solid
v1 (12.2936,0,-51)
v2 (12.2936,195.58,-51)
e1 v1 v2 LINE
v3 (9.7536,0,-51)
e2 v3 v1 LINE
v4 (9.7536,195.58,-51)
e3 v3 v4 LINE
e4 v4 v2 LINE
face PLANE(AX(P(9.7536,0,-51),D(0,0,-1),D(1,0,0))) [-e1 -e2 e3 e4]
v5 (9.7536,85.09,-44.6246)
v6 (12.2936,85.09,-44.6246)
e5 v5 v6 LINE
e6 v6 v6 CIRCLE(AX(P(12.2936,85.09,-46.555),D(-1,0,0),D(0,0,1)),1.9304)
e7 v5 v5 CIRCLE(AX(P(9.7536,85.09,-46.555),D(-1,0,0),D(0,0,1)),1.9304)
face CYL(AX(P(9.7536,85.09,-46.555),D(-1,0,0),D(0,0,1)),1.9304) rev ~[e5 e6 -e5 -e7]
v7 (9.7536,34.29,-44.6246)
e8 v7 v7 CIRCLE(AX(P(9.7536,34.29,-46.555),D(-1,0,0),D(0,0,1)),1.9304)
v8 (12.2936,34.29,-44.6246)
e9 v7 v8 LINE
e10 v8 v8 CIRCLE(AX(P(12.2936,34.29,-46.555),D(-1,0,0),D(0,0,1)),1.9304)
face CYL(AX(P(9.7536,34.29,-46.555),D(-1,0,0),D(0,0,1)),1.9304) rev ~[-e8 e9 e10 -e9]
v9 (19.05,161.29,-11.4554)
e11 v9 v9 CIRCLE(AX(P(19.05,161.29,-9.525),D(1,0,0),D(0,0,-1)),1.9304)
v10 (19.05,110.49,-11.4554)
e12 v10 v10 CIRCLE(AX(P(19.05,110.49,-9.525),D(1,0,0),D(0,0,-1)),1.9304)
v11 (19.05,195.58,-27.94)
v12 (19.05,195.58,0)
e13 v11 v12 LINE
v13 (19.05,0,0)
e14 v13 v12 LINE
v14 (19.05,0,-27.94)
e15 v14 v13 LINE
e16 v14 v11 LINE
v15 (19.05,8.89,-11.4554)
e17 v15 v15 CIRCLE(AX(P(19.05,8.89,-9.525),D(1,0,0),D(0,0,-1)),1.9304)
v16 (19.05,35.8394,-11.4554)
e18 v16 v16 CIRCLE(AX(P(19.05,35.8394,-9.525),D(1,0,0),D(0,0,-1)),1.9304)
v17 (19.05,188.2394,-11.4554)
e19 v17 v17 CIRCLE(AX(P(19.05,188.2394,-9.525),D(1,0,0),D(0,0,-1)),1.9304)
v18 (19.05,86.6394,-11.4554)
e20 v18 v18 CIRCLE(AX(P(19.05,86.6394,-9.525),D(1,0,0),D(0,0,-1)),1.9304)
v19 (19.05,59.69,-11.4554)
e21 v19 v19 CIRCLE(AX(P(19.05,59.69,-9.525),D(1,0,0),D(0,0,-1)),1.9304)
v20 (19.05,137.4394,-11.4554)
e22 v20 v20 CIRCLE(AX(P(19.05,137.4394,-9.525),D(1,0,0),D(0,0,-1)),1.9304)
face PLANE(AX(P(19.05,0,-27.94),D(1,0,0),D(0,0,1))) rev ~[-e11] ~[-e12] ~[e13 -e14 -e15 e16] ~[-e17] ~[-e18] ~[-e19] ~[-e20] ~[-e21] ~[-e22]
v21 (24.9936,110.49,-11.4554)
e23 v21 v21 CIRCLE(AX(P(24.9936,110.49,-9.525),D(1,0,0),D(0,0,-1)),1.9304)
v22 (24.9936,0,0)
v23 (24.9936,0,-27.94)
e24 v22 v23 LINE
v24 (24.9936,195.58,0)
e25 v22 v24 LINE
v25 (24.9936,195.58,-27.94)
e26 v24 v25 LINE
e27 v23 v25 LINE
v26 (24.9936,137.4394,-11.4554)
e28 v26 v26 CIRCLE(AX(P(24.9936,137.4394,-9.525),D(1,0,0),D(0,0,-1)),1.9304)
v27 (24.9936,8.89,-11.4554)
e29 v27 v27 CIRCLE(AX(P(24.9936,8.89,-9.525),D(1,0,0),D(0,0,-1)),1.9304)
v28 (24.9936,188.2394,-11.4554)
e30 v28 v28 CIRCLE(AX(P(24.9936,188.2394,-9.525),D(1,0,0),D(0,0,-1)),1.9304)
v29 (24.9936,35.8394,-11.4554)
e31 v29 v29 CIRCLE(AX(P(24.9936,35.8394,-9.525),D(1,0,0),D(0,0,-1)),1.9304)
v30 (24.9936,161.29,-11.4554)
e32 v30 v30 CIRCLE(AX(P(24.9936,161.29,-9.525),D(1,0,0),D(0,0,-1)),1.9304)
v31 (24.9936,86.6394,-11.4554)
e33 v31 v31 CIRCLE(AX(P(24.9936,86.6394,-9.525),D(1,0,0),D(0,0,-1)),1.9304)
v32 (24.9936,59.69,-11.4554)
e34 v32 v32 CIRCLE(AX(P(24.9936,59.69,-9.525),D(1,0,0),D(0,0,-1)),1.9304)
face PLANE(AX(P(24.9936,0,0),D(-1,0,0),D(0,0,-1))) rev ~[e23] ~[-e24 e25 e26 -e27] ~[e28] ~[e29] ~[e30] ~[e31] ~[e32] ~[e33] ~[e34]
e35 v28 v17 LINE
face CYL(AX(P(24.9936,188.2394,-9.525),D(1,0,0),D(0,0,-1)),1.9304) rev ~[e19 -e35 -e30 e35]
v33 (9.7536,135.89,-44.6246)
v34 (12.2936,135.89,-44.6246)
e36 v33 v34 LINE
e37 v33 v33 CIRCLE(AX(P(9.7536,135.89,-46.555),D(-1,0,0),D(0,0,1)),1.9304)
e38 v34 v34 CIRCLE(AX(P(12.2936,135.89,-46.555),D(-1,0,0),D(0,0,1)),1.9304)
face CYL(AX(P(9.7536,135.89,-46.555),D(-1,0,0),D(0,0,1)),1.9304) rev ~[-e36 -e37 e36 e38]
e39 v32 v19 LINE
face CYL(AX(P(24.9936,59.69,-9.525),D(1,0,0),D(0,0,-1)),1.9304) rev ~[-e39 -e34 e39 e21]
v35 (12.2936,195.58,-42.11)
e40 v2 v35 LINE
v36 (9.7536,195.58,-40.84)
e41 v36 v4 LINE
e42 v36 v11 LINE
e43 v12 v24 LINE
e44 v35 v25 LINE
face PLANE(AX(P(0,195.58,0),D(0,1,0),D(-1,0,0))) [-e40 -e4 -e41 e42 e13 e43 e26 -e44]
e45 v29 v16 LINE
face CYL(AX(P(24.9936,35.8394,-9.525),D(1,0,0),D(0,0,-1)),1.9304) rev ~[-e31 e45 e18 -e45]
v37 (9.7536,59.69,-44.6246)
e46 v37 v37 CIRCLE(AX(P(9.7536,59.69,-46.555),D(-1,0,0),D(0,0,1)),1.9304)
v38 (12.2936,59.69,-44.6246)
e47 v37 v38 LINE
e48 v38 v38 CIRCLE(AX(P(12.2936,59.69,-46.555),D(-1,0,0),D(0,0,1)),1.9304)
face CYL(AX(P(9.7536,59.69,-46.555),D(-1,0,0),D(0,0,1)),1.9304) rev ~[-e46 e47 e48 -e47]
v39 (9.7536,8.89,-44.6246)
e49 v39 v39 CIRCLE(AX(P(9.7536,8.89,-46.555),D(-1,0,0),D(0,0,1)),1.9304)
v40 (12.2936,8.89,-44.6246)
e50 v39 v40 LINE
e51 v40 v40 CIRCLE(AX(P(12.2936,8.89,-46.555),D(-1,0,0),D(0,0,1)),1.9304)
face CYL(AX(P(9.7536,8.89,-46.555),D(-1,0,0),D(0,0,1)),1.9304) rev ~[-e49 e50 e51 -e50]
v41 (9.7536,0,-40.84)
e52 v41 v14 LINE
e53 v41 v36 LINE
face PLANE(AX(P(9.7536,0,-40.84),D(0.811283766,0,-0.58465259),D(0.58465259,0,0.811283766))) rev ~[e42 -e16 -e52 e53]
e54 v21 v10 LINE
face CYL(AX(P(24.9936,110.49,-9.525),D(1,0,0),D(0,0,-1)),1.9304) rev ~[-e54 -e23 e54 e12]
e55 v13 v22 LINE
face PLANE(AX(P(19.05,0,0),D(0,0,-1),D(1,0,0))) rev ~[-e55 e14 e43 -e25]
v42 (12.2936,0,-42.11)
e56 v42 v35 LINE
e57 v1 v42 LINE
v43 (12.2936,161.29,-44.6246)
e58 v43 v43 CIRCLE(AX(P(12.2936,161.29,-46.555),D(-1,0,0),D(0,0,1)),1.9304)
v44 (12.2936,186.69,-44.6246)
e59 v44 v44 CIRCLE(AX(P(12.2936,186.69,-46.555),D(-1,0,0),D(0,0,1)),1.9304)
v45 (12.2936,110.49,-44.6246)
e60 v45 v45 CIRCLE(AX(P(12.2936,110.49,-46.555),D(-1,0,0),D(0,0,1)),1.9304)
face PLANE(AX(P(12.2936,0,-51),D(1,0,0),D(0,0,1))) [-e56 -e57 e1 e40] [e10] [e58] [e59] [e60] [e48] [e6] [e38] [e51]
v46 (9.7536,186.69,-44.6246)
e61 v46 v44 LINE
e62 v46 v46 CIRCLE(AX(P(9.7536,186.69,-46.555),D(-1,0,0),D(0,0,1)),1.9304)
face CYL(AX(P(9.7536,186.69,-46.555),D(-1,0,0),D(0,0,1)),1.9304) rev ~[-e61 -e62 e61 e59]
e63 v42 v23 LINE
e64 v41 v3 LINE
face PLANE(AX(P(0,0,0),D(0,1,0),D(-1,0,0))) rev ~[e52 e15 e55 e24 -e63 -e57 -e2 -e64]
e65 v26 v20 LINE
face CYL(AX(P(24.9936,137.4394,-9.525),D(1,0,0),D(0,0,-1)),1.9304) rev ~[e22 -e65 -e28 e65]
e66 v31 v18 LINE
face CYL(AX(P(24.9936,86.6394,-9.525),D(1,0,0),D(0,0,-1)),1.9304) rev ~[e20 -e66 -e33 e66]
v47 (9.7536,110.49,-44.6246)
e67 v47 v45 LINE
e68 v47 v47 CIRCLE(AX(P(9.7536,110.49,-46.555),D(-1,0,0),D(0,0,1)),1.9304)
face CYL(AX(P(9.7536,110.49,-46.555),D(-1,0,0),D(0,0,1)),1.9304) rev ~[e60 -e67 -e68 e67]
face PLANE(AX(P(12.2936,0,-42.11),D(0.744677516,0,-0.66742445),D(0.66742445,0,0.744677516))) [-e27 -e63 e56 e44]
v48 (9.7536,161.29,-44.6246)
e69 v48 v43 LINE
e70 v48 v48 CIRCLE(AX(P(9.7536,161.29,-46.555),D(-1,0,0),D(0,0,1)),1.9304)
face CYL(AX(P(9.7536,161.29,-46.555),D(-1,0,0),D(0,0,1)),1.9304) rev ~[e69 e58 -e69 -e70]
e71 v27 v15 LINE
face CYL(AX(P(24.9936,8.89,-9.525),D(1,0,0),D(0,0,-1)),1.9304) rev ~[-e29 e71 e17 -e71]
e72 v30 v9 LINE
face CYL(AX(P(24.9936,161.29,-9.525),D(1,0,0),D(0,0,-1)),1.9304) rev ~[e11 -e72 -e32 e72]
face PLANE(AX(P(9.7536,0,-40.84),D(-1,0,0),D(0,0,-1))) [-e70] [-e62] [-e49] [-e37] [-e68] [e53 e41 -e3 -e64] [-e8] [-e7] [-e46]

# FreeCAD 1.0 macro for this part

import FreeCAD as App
import Part
import Sketcher

V = App.Vector
Q = App.Units.Quantity

doc = App.newDocument("Part")
body = doc.addObject("PartDesign::Body", "Body")

# Sketch on XZ plane
sketch1 = doc.addObject("Sketcher::SketchObject", "Sketch")
body.addObject(sketch1)
sketch1.AttachmentSupport = (doc.XZ_Plane, [""])
sketch1.MapMode = "FlatFace"
sketch1.addGeometry([
    Part.LineSegment(V(19.1, -27.9, 0), V(19.1, 0, 0)),  # 0
    Part.LineSegment(V(19.1, 0, 0), V(25, 0, 0)),  # 1
    Part.LineSegment(V(25, 0, 0), V(25, -27.9, 0)),  # 2
    Part.LineSegment(V(25, -27.9, 0), V(12.3, -42.1, 0)),  # 3
    Part.LineSegment(V(12.3, -42.1, 0), V(12.3, -51, 0)),  # 4
    Part.LineSegment(V(12.3, -51, 0), V(9.8, -51, 0)),  # 5
    Part.LineSegment(V(9.8, -51, 0), V(9.8, -40.8, 0)),  # 6
    Part.LineSegment(V(9.8, -40.8, 0), V(19.1, -27.9, 0)),  # 7
], False)
sketch1.addConstraint([
    Sketcher.Constraint("Coincident", 0, 2, 1, 1),
    Sketcher.Constraint("Coincident", 1, 2, 2, 1),
    Sketcher.Constraint("Coincident", 2, 2, 3, 1),
    Sketcher.Constraint("Coincident", 3, 2, 4, 1),
    Sketcher.Constraint("Coincident", 4, 2, 5, 1),
    Sketcher.Constraint("Coincident", 5, 2, 6, 1),
    Sketcher.Constraint("Coincident", 6, 2, 7, 1),
    Sketcher.Constraint("Coincident", 7, 2, 0, 1),
    Sketcher.Constraint("Vertical", 0),
    Sketcher.Constraint("Horizontal", 1),
    Sketcher.Constraint("Vertical", 2),
    Sketcher.Constraint("Vertical", 4),
    Sketcher.Constraint("Horizontal", 5),
    Sketcher.Constraint("Vertical", 6),
    Sketcher.Constraint("PointOnObject", 0, 2, -1),
    Sketcher.Constraint("Horizontal", 2, 2, 7, 2),
    Sketcher.Constraint("DistanceY", 0, 1, 0, 2, Q("1.1 in")),
    Sketcher.Constraint("DistanceY", 4, 2, 4, 1, Q("0.35 in")),
    Sketcher.Constraint("DistanceX", 1, 1, 1, 2, Q("0.234 in")),
    Sketcher.Constraint("DistanceX", -1, 1, 0, 2, Q("0.75 in")),
    Sketcher.Constraint("DistanceX", 5, 2, 5, 1, Q("0.1 in")),
    Sketcher.Constraint("DistanceY", 6, 1, 6, 2, Q("0.4 in")),
    Sketcher.Constraint("DistanceX", 3, 2, 2, 2, Q("0.5 in")),
    Sketcher.Constraint("DistanceY", 4, 2, -1, 1, Q("51 mm")),
])
pad1 = doc.addObject("PartDesign::Pad", "Pad")
body.addObject(pad1)
pad1.Profile = sketch1
pad1.Length = Q("7.7 in")
pad1.Reversed = True

# Sketch on YZ plane
sketch2 = doc.addObject("Sketcher::SketchObject", "Sketch001")
body.addObject(sketch2)
sketch2.AttachmentSupport = (doc.YZ_Plane, [""])
sketch2.MapMode = "FlatFace"
sketch2.AttachmentOffset = App.Placement(V(0, 0, 0.984 * 25.4), App.Rotation())
sketch2.addGeometry([
    Part.Circle(V(8.9, -9.5, 0), V(0, 0, 1), 1.9),  # 0
    Part.Circle(V(35.8, -9.5, 0), V(0, 0, 1), 1.9),  # 1
    Part.Circle(V(86.6, -9.5, 0), V(0, 0, 1), 1.9),  # 2
    Part.Circle(V(59.7, -9.5, 0), V(0, 0, 1), 1.9),  # 3
    Part.Circle(V(137.4, -9.5, 0), V(0, 0, 1), 1.9),  # 4
    Part.Circle(V(110.5, -9.5, 0), V(0, 0, 1), 1.9),  # 5
    Part.Circle(V(188.2, -9.5, 0), V(0, 0, 1), 1.9),  # 6
    Part.Circle(V(161.3, -9.5, 0), V(0, 0, 1), 1.9),  # 7
], False)
sketch2.addConstraint([
    Sketcher.Constraint("Equal", 0, 1),
    Sketcher.Constraint("Equal", 1, 2),
    Sketcher.Constraint("Equal", 2, 3),
    Sketcher.Constraint("Equal", 3, 4),
    Sketcher.Constraint("Equal", 4, 5),
    Sketcher.Constraint("Equal", 5, 6),
    Sketcher.Constraint("Equal", 6, 7),
    Sketcher.Constraint("Horizontal", 0, 3, 1, 3),
    Sketcher.Constraint("Horizontal", 1, 3, 2, 3),
    Sketcher.Constraint("Horizontal", 2, 3, 3, 3),
    Sketcher.Constraint("Horizontal", 3, 3, 4, 3),
    Sketcher.Constraint("Horizontal", 4, 3, 5, 3),
    Sketcher.Constraint("Horizontal", 5, 3, 6, 3),
    Sketcher.Constraint("Horizontal", 6, 3, 7, 3),
    Sketcher.Constraint("Diameter", 0, Q("0.152 in")),
    Sketcher.Constraint("DistanceX", 1, 3, 2, 3, Q("2 in")),
    Sketcher.Constraint("DistanceX", 0, 3, 3, 3, Q("2 in")),
    Sketcher.Constraint("DistanceX", 2, 3, 4, 3, Q("2 in")),
    Sketcher.Constraint("DistanceX", 3, 3, 5, 3, Q("2 in")),
    Sketcher.Constraint("DistanceX", 4, 3, 6, 3, Q("2 in")),
    Sketcher.Constraint("DistanceX", 5, 3, 7, 3, Q("2 in")),
    Sketcher.Constraint("DistanceX", -1, 1, 0, 3, Q("0.35 in")),
    Sketcher.Constraint("DistanceY", 0, 3, -1, 1, Q("0.375 in")),
    Sketcher.Constraint("DistanceX", 0, 3, 1, 3, Q("1.061 in")),
])
pocket1 = doc.addObject("PartDesign::Pocket", "Pocket")
body.addObject(pocket1)
pocket1.Profile = sketch2
pocket1.Length = Q("7.7 in")

# Sketch on YZ plane
sketch3 = doc.addObject("Sketcher::SketchObject", "Sketch002")
body.addObject(sketch3)
sketch3.AttachmentSupport = (doc.YZ_Plane, [""])
sketch3.MapMode = "FlatFace"
sketch3.AttachmentOffset = App.Placement(V(0, 0, 0.384 * 25.4), App.Rotation())
sketch3.addGeometry([
    Part.Circle(V(8.9, -46.6, 0), V(0, 0, 1), 1.9),  # 0
    Part.Circle(V(34.3, -46.6, 0), V(0, 0, 1), 1.9),  # 1
    Part.Circle(V(59.7, -46.6, 0), V(0, 0, 1), 1.9),  # 2
    Part.Circle(V(85.1, -46.6, 0), V(0, 0, 1), 1.9),  # 3
    Part.Circle(V(110.5, -46.6, 0), V(0, 0, 1), 1.9),  # 4
    Part.Circle(V(135.9, -46.6, 0), V(0, 0, 1), 1.9),  # 5
    Part.Circle(V(161.3, -46.6, 0), V(0, 0, 1), 1.9),  # 6
    Part.Circle(V(186.7, -46.6, 0), V(0, 0, 1), 1.9),  # 7
], False)
sketch3.addConstraint([
    Sketcher.Constraint("Equal", 0, 1),
    Sketcher.Constraint("Equal", 1, 2),
    Sketcher.Constraint("Equal", 2, 3),
    Sketcher.Constraint("Equal", 3, 4),
    Sketcher.Constraint("Equal", 4, 5),
    Sketcher.Constraint("Equal", 5, 6),
    Sketcher.Constraint("Equal", 6, 7),
    Sketcher.Constraint("Horizontal", 0, 3, 1, 3),
    Sketcher.Constraint("Horizontal", 1, 3, 2, 3),
    Sketcher.Constraint("Horizontal", 2, 3, 3, 3),
    Sketcher.Constraint("Horizontal", 3, 3, 4, 3),
    Sketcher.Constraint("Horizontal", 4, 3, 5, 3),
    Sketcher.Constraint("Horizontal", 5, 3, 6, 3),
    Sketcher.Constraint("Horizontal", 6, 3, 7, 3),
    Sketcher.Constraint("Diameter", 0, Q("0.152 in")),
    Sketcher.Constraint("DistanceX", 0, 3, 1, 3, Q("1 in")),
    Sketcher.Constraint("DistanceX", 1, 3, 2, 3, Q("1 in")),
    Sketcher.Constraint("DistanceX", 2, 3, 3, 3, Q("1 in")),
    Sketcher.Constraint("DistanceX", 3, 3, 4, 3, Q("1 in")),
    Sketcher.Constraint("DistanceX", 4, 3, 5, 3, Q("1 in")),
    Sketcher.Constraint("DistanceX", 5, 3, 6, 3, Q("1 in")),
    Sketcher.Constraint("DistanceX", 6, 3, 7, 3, Q("1 in")),
    Sketcher.Constraint("DistanceX", -1, 1, 0, 3, Q("0.35 in")),
    Sketcher.Constraint("DistanceY", 0, 3, -1, 1, Q("46.555 mm")),
])
pocket2 = doc.addObject("PartDesign::Pocket", "Pocket001")
body.addObject(pocket2)
pocket2.Profile = sketch3
pocket2.Type = "ThroughAll"
pocket2.Reversed = True

doc.recompute()
